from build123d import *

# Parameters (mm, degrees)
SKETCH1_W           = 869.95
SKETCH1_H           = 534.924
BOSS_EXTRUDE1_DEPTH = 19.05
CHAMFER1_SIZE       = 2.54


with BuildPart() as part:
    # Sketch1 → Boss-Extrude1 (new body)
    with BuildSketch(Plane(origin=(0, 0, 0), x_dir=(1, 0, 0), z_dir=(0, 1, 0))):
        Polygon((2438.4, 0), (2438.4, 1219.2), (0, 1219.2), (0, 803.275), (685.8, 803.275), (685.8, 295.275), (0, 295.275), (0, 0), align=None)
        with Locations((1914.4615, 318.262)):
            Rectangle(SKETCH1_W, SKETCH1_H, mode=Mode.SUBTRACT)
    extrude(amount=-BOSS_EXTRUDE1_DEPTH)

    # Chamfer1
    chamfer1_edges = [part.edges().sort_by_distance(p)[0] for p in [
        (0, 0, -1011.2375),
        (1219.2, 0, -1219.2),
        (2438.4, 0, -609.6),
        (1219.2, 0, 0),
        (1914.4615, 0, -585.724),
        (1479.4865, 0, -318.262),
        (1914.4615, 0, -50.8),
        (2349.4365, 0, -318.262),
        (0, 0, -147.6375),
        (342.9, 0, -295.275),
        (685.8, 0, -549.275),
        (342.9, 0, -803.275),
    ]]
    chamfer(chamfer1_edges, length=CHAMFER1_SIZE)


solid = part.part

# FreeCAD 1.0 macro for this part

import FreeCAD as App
import Part
import Sketcher
Q = App.Units.Quantity


def edges_at(feature, points):
    """Names of the edges that pass closest to the given points."""
    edges = feature.Shape.Edges
    near = lambda p: min(range(len(edges)), key=lambda i: edges[i].distToShape(Part.Vertex(*p))[0])
    return sorted({f"Edge{near(p) + 1}" for p in points})


def add_polygon(sketch, points):
    """Adds a closed chain of lines whose ends are joined by coincident constraints."""
    first, n = sketch.GeometryCount, len(points)
    for a, b in zip(points, points[1:] + points[:1]):
        sketch.addGeometry(Part.LineSegment(App.Vector(*a, 0), App.Vector(*b, 0)), False)
    for i in range(n):
        sketch.addConstraint(Sketcher.Constraint("Coincident", first + i, 2, first + (i + 1) % n, 1))

doc = App.newDocument("Part")
body = doc.addObject("PartDesign::Body", "Body")

# Sketch on XZ plane
sketch1 = body.newObject("Sketcher::SketchObject", "Sketch")
sketch1.AttachmentSupport = (doc.getObject("XZ_Plane"), [""])
sketch1.MapMode = "FlatFace"
add_polygon(sketch1, [(2438.4, 0), (2438.4, -1219.2), (0, -1219.2), (0, -803.275), (685.8, -803.275), (685.8, -295.275), (0, -295.275), (0, 0)])  # lines 0-7
add_polygon(sketch1, [(2349.4365, -50.8), (1479.4865, -50.8), (1479.4865, -585.724), (2349.4365, -585.724)])  # lines 8-11
sketch1.addConstraint([
    Sketcher.Constraint("Vertical", 0),
    Sketcher.Constraint("Horizontal", 1),
    Sketcher.Constraint("Vertical", 2),
    Sketcher.Constraint("Horizontal", 3),
    Sketcher.Constraint("Vertical", 4),
    Sketcher.Constraint("Horizontal", 5),
    Sketcher.Constraint("Vertical", 6),
    Sketcher.Constraint("Horizontal", 7),
    Sketcher.Constraint("Horizontal", 8),
    Sketcher.Constraint("Vertical", 9),
    Sketcher.Constraint("Horizontal", 10),
    Sketcher.Constraint("Vertical", 11),
    Sketcher.Constraint("Coincident", 6, 2, -1, 1),
    Sketcher.Constraint("PointOnObject", 1, 2, -2),
    Sketcher.Constraint("DistanceX", 1, 2, 1, 1, Q("96 in")),
    Sketcher.Constraint("DistanceX", 3, 1, 3, 2, Q("27 in")),
    Sketcher.Constraint("DistanceY", 0, 2, 0, 1, Q("48 in")),
    Sketcher.Constraint("DistanceY", 4, 1, 4, 2, Q("20 in")),
    Sketcher.Constraint("DistanceY", 8, 2, -1, 1, Q("2 in")),
    Sketcher.Constraint("DistanceX", 8, 2, 8, 1, Q("34.25 in")),
    Sketcher.Constraint("DistanceY", 9, 2, 9, 1, Q("21.06 in")),
    Sketcher.Constraint("DistanceY", 2, 1, 2, 2, Q("16.375 in")),
    Sketcher.Constraint("DistanceX", -1, 1, 8, 2, Q("58.2475 in")),
])
pad1 = body.newObject("PartDesign::Pad", "Pad")
pad1.Profile = sketch1
pad1.Length = Q("0.75 in")
doc.recompute()

chamfer = body.newObject("PartDesign::Chamfer", "Chamfer")
chamfer.Base = (pad1, edges_at(pad1, [
    (0, 0, -1011.237),
    (1219.2, 0, -1219.2),
    (2438.4, 0, -609.6),
    (1219.2, 0, 0),
    (1914.461, 0, -585.724),
    (1479.486, 0, -318.262),
    (1914.461, 0, -50.8),
    (2349.436, 0, -318.262),
    (0, 0, -147.637),
    (342.9, 0, -295.275),
    (685.8, 0, -549.275),
    (342.9, 0, -803.275),
]))
chamfer.Size = Q("0.1 in")

doc.recompute()
